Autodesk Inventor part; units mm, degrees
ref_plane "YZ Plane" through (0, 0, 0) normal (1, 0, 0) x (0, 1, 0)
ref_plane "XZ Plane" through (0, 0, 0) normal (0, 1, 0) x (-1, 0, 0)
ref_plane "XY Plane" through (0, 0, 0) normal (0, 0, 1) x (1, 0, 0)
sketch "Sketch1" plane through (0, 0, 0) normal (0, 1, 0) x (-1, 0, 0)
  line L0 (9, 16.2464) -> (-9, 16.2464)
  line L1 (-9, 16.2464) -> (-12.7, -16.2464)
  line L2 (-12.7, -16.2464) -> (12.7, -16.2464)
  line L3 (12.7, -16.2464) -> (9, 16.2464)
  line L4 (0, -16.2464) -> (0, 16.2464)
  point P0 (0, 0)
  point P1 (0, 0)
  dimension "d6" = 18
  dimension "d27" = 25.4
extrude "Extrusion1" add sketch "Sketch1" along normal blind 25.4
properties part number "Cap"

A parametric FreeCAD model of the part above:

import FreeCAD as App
import Part
import Sketcher

doc = App.newDocument("Part")
body = doc.addObject("PartDesign::Body", "Body")

sketch1 = body.newObject("Sketcher::SketchObject", "Sketch")
sketch1.AttachmentSupport = (doc.getObject("XZ_Plane"), [""])
sketch1.MapMode = "FlatFace"
sketch1.addGeometry(Part.LineSegment(App.Vector(-13, -16, 0), App.Vector(-9, 16, 0)), False)
sketch1.addGeometry(Part.LineSegment(App.Vector(-9, 16, 0), App.Vector(9, 16, 0)), False)
sketch1.addGeometry(Part.LineSegment(App.Vector(9, 16, 0), App.Vector(13, -16, 0)), False)
sketch1.addGeometry(Part.LineSegment(App.Vector(13, -16, 0), App.Vector(-13, -16, 0)), False)
sketch1.addConstraint(Sketcher.Constraint("Coincident", 0, 2, 1, 1))
sketch1.addConstraint(Sketcher.Constraint("Coincident", 1, 2, 2, 1))
sketch1.addConstraint(Sketcher.Constraint("Coincident", 2, 2, 3, 1))
sketch1.addConstraint(Sketcher.Constraint("Coincident", 3, 2, 0, 1))
sketch1.addConstraint(Sketcher.Constraint("Horizontal", 1))
sketch1.addConstraint(Sketcher.Constraint("Horizontal", 3))
sketch1.addConstraint(Sketcher.Constraint("Equal", 0, 2))
sketch1.addConstraint(Sketcher.Constraint("DistanceX", 1, 1, 1, 2, 18.0))
sketch1.addConstraint(Sketcher.Constraint("DistanceX", 3, 2, 3, 1, 25.4))
sketch1.addConstraint(Sketcher.Constraint("DistanceX", 0, 2, -1, 1, 9.0))
sketch1.addConstraint(Sketcher.Constraint("Distance", 0, 32.7028))
sketch1.addConstraint(Sketcher.Constraint("DistanceY", -1, 1, 0, 2, 16.2464))
pad1 = body.newObject("PartDesign::Pad", "Pad")
pad1.Profile = sketch1
pad1.Length = 25.4
pad1.Reversed = True

doc.recompute()
